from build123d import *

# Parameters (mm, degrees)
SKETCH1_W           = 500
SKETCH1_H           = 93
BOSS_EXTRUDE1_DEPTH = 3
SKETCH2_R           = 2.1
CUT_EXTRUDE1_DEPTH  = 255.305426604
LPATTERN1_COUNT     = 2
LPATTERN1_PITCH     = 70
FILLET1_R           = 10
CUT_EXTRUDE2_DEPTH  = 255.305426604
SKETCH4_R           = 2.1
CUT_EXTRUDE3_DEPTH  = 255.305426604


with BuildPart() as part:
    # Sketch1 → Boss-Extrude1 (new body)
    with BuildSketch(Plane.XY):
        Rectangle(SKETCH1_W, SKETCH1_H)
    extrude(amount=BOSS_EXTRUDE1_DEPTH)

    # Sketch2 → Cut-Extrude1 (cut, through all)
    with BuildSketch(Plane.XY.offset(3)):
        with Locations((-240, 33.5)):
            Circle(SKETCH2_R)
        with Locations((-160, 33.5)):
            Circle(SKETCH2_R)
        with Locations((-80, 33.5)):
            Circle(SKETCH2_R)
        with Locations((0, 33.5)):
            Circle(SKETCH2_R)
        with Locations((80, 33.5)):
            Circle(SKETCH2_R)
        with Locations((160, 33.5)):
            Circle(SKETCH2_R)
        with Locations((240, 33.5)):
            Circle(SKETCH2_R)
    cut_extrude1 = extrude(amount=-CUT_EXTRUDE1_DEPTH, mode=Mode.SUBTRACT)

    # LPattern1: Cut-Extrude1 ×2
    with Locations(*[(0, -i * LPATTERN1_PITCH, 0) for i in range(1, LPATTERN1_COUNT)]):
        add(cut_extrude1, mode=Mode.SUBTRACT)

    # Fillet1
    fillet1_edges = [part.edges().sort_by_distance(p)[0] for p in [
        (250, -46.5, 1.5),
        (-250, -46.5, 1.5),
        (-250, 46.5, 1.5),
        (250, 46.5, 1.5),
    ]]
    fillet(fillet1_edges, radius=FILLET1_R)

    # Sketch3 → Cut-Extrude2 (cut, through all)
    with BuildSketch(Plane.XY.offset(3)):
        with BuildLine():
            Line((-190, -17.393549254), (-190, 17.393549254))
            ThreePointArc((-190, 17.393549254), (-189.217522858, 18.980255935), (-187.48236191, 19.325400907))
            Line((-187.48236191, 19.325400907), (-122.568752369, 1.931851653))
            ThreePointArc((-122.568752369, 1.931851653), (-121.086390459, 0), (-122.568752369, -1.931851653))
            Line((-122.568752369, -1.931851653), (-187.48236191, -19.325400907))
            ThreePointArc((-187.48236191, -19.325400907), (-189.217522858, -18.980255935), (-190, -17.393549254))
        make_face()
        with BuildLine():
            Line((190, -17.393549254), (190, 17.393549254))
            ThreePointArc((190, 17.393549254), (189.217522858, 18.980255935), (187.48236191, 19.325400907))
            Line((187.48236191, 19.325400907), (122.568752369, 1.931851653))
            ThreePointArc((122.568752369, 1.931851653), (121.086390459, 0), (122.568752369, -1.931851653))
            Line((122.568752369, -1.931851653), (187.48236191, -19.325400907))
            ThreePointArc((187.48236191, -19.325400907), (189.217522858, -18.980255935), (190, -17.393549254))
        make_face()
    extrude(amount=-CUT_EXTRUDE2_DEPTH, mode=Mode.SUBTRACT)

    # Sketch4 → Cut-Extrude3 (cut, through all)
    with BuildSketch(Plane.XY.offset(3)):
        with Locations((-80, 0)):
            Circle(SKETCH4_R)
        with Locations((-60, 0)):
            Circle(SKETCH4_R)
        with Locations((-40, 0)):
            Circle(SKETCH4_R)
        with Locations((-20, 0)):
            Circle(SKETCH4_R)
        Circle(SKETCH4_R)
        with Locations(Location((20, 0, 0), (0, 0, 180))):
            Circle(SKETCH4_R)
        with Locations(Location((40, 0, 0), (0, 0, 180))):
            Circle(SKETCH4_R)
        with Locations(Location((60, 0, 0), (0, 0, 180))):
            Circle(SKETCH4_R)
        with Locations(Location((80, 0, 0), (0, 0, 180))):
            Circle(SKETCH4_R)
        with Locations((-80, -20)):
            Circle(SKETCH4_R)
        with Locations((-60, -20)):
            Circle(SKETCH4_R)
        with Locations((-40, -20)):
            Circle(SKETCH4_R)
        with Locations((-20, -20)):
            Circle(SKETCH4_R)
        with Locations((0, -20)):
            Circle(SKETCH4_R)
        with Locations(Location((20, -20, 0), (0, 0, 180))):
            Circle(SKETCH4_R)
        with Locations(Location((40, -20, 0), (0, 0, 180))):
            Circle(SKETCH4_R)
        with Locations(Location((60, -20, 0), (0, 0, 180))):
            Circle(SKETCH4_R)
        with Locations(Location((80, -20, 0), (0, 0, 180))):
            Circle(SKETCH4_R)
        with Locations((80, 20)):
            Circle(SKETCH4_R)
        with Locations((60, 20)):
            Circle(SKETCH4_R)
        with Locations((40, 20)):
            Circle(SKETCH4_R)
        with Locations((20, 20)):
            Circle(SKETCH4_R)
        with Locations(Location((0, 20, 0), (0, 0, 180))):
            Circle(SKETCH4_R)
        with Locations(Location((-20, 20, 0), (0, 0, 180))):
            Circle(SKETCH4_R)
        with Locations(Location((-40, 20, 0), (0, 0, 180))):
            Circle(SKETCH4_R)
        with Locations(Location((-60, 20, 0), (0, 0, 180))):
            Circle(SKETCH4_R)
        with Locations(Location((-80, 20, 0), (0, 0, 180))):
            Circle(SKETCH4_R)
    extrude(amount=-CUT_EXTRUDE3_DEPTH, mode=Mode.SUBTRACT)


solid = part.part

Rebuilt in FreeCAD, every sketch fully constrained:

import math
import FreeCAD as App
import Part
import Sketcher
from FreeCAD import Vector
Q = App.Units.Quantity


def edges_at(feature, points):
    """Names of the edges that pass closest to the given points."""
    edges = feature.Shape.Edges
    near = lambda p: min(range(len(edges)), key=lambda i: edges[i].distToShape(Part.Vertex(*p))[0])
    return sorted({f"Edge{near(p) + 1}" for p in points})


def add_polygon(sketch, points):
    """Adds a closed chain of lines whose ends are joined by coincident constraints."""
    first, n = sketch.GeometryCount, len(points)
    for a, b in zip(points, points[1:] + points[:1]):
        sketch.addGeometry(Part.LineSegment(App.Vector(*a, 0), App.Vector(*b, 0)), False)
    for i in range(n):
        sketch.addConstraint(Sketcher.Constraint("Coincident", first + i, 2, first + (i + 1) % n, 1))

doc = App.newDocument("Part")
body = doc.addObject("PartDesign::Body", "Body")

# Sketch on XY plane
sketch1 = body.newObject("Sketcher::SketchObject", "Sketch")
sketch1.AttachmentSupport = (doc.getObject("XY_Plane"), [""])
sketch1.MapMode = "FlatFace"
add_polygon(sketch1, [(-250, 46), (-250, -46), (250, -46), (250, 46)])  # lines 0-3
sketch1.addConstraint([
    Sketcher.Constraint("Vertical", 0),
    Sketcher.Constraint("Horizontal", 1),
    Sketcher.Constraint("Vertical", 2),
    Sketcher.Constraint("Horizontal", 3),
    Sketcher.Constraint("Symmetric", 0, 2, 2, 2, -1, 1),
    Sketcher.Constraint("DistanceX", 1, 1, 1, 2, 500.0),
    Sketcher.Constraint("DistanceY", 0, 2, 0, 1, 93.0),
])
pad1 = body.newObject("PartDesign::Pad", "Pad")
pad1.Profile = sketch1
pad1.Length = 3

# Sketch on XY plane
sketch2 = body.newObject("Sketcher::SketchObject", "Sketch001")
sketch2.AttachmentSupport = (doc.getObject("XY_Plane"), [""])
sketch2.MapMode = "FlatFace"
sketch2.AttachmentOffset = App.Placement(Vector(0, 0, 3), App.Rotation())
sketch2.addGeometry([
    Part.Circle(Vector(-240, 33.5, 0), Vector(0, 0, 1), 2.1),  # 0
    Part.Circle(Vector(-160, 33.5, 0), Vector(0, 0, 1), 2.1),  # 1
    Part.Circle(Vector(-80, 33.5, 0), Vector(0, 0, 1), 2.1),  # 2
    Part.Circle(Vector(0, 33.5, 0), Vector(0, 0, 1), 2.1),  # 3
    Part.Circle(Vector(80, 33.5, 0), Vector(0, 0, 1), 2.1),  # 4
    Part.Circle(Vector(160, 33.5, 0), Vector(0, 0, 1), 2.1),  # 5
    Part.Circle(Vector(240, 33.5, 0), Vector(0, 0, 1), 2.1),  # 6
], False)
sketch2.addConstraint([
    Sketcher.Constraint("Equal", 0, 1),
    Sketcher.Constraint("Equal", 1, 2),
    Sketcher.Constraint("Equal", 2, 3),
    Sketcher.Constraint("Equal", 3, 4),
    Sketcher.Constraint("Equal", 4, 5),
    Sketcher.Constraint("Equal", 5, 6),
    Sketcher.Constraint("Symmetric", 2, 3, 4, 3, -2),
    Sketcher.Constraint("Symmetric", 1, 3, 5, 3, -2),
    Sketcher.Constraint("Symmetric", 0, 3, 6, 3, -2),
    Sketcher.Constraint("PointOnObject", 3, 3, -2),
    Sketcher.Constraint("Horizontal", 0, 3, 1, 3),
    Sketcher.Constraint("Horizontal", 1, 3, 2, 3),
    Sketcher.Constraint("Horizontal", 2, 3, 3, 3),
    Sketcher.Constraint("Diameter", 0, 4.2),
    Sketcher.Constraint("DistanceX", 0, 3, -1, 1, 240.0),
    Sketcher.Constraint("DistanceX", 1, 3, -1, 1, 160.0),
    Sketcher.Constraint("DistanceX", 2, 3, -1, 1, 80.0),
    Sketcher.Constraint("DistanceY", -1, 1, 0, 3, 33.5),
])
pocket1 = body.newObject("PartDesign::Pocket", "Pocket")
pocket1.Profile = sketch2
pocket1.Type = "ThroughAll"
doc.recompute()

linearpattern = body.newObject("PartDesign::LinearPattern", "LinearPattern")
linearpattern.Originals = [pocket1]
linearpattern.Direction = (doc.getObject("Y_Axis"), [""])
linearpattern.Mode = "offset"
linearpattern.Offset = 70
linearpattern.Occurrences = 2
linearpattern.Reversed = True
body.Tip = linearpattern
doc.recompute()

fillet = body.newObject("PartDesign::Fillet", "Fillet")
fillet.Base = (linearpattern, edges_at(linearpattern, [
    (250, -46.5, 1.5),
    (-250, -46.5, 1.5),
    (-250, 46.5, 1.5),
    (250, 46.5, 1.5),
]))
fillet.Radius = 10

# Sketch on XY plane
sketch3 = body.newObject("Sketcher::SketchObject", "Sketch002")
sketch3.AttachmentSupport = (doc.getObject("XY_Plane"), [""])
sketch3.MapMode = "FlatFace"
sketch3.AttachmentOffset = App.Placement(Vector(0, 0, 3), App.Rotation())
sketch3.addGeometry([
    Part.LineSegment(Vector(-190, 17.4, 0), Vector(-190, -17.4, 0)),  # 0
    Part.ArcOfCircle(Part.Circle(Vector(-188, -17.4, 0), Vector(0, 0, 1), 2), math.radians(180), math.radians(285)),  # 1
    Part.LineSegment(Vector(-187.5, -19.3, 0), Vector(-122.6, -1.9, 0)),  # 2
    Part.ArcOfCircle(Part.Circle(Vector(-123.1, 0, 0), Vector(0, 0, 1), 2), math.radians(-75), math.radians(75)),  # 3
    Part.LineSegment(Vector(-122.6, 1.9, 0), Vector(-187.5, 19.3, 0)),  # 4
    Part.ArcOfCircle(Part.Circle(Vector(-188, 17.4, 0), Vector(0, 0, 1), 2), math.radians(75), math.radians(180)),  # 5
    Part.LineSegment(Vector(190, -17.4, 0), Vector(190, 17.4, 0)),  # 6
    Part.ArcOfCircle(Part.Circle(Vector(188, 17.4, 0), Vector(0, 0, 1), 2), math.radians(0), math.radians(105)),  # 7
    Part.LineSegment(Vector(187.5, 19.3, 0), Vector(122.6, 1.9, 0)),  # 8
    Part.ArcOfCircle(Part.Circle(Vector(123.1, 0, 0), Vector(0, 0, 1), 2), math.radians(105), math.radians(255)),  # 9
    Part.LineSegment(Vector(122.6, -1.9, 0), Vector(187.5, -19.3, 0)),  # 10
    Part.ArcOfCircle(Part.Circle(Vector(188, -17.4, 0), Vector(0, 0, 1), 2), math.radians(-105), math.radians(0)),  # 11
], False)
sketch3.addConstraint([
    Sketcher.Constraint("Tangent", 0, 2, 1, 1),
    Sketcher.Constraint("Tangent", 1, 2, 2, 1),
    Sketcher.Constraint("Tangent", 2, 2, 3, 1),
    Sketcher.Constraint("Tangent", 3, 2, 4, 1),
    Sketcher.Constraint("Tangent", 4, 2, 5, 1),
    Sketcher.Constraint("Tangent", 5, 2, 0, 1),
    Sketcher.Constraint("Tangent", 6, 2, 7, 1),
    Sketcher.Constraint("Tangent", 7, 2, 8, 1),
    Sketcher.Constraint("Tangent", 8, 2, 9, 1),
    Sketcher.Constraint("Tangent", 9, 2, 10, 1),
    Sketcher.Constraint("Tangent", 10, 2, 11, 1),
    Sketcher.Constraint("Tangent", 11, 2, 6, 1),
    Sketcher.Constraint("Vertical", 0),
    Sketcher.Constraint("Vertical", 6),
    Sketcher.Constraint("Equal", 1, 3),
    Sketcher.Constraint("Equal", 3, 5),
    Sketcher.Constraint("Equal", 5, 7),
    Sketcher.Constraint("Equal", 7, 9),
    Sketcher.Constraint("Equal", 9, 11),
    Sketcher.Constraint("Symmetric", 1, 3, 7, 3, -1, 1),
    Sketcher.Constraint("Symmetric", 3, 3, 9, 3, -1, 1),
    Sketcher.Constraint("Symmetric", 4, 2, 7, 2, -2),
    Sketcher.Constraint("Parallel", 4, 10),
    Sketcher.Constraint("Radius", 1, 2.0),
    Sketcher.Constraint("Angle", 2, Q("15 deg")),
    Sketcher.Constraint("DistanceX", 1, 3, -1, 1, 188.0),
    Sketcher.Constraint("DistanceY", 0, 2, 0, 1, 34.787099),
])
pocket2 = body.newObject("PartDesign::Pocket", "Pocket001")
pocket2.Profile = sketch3
pocket2.Type = "ThroughAll"

# Sketch on XY plane
sketch4 = body.newObject("Sketcher::SketchObject", "Sketch003")
sketch4.AttachmentSupport = (doc.getObject("XY_Plane"), [""])
sketch4.MapMode = "FlatFace"
sketch4.AttachmentOffset = App.Placement(Vector(0, 0, 3), App.Rotation())
sketch4.addGeometry([
    Part.Circle(Vector(-80, 0, 0), Vector(0, 0, 1), 2.1),  # 0
    Part.Circle(Vector(-60, 0, 0), Vector(0, 0, 1), 2.1),  # 1
    Part.Circle(Vector(-40, 0, 0), Vector(0, 0, 1), 2.1),  # 2
    Part.Circle(Vector(-20, 0, 0), Vector(0, 0, 1), 2.1),  # 3
    Part.Circle(Vector(0, 0, 0), Vector(0, 0, 1), 2.1),  # 4
    Part.Circle(Vector(20, 0, 0), Vector(0, 0, 1), 2.1),  # 5
    Part.Circle(Vector(40, 0, 0), Vector(0, 0, 1), 2.1),  # 6
    Part.Circle(Vector(60, 0, 0), Vector(0, 0, 1), 2.1),  # 7
    Part.Circle(Vector(80, 0, 0), Vector(0, 0, 1), 2.1),  # 8
    Part.Circle(Vector(-80, -20, 0), Vector(0, 0, 1), 2.1),  # 9
    Part.Circle(Vector(-60, -20, 0), Vector(0, 0, 1), 2.1),  # 10
    Part.Circle(Vector(-40, -20, 0), Vector(0, 0, 1), 2.1),  # 11
    Part.Circle(Vector(-20, -20, 0), Vector(0, 0, 1), 2.1),  # 12
    Part.Circle(Vector(0, -20, 0), Vector(0, 0, 1), 2.1),  # 13
    Part.Circle(Vector(20, -20, 0), Vector(0, 0, 1), 2.1),  # 14
    Part.Circle(Vector(40, -20, 0), Vector(0, 0, 1), 2.1),  # 15
    Part.Circle(Vector(60, -20, 0), Vector(0, 0, 1), 2.1),  # 16
    Part.Circle(Vector(80, -20, 0), Vector(0, 0, 1), 2.1),  # 17
    Part.Circle(Vector(80, 20, 0), Vector(0, 0, 1), 2.1),  # 18
    Part.Circle(Vector(60, 20, 0), Vector(0, 0, 1), 2.1),  # 19
    Part.Circle(Vector(40, 20, 0), Vector(0, 0, 1), 2.1),  # 20
    Part.Circle(Vector(20, 20, 0), Vector(0, 0, 1), 2.1),  # 21
    Part.Circle(Vector(0, 20, 0), Vector(0, 0, 1), 2.1),  # 22
    Part.Circle(Vector(-20, 20, 0), Vector(0, 0, 1), 2.1),  # 23
    Part.Circle(Vector(-40, 20, 0), Vector(0, 0, 1), 2.1),  # 24
    Part.Circle(Vector(-60, 20, 0), Vector(0, 0, 1), 2.1),  # 25
    Part.Circle(Vector(-80, 20, 0), Vector(0, 0, 1), 2.1),  # 26
], False)
sketch4.addConstraint([
    Sketcher.Constraint("Coincident", 4, 3, -1, 1),
    Sketcher.Constraint("Equal", 0, 1),
    Sketcher.Constraint("Equal", 1, 2),
    Sketcher.Constraint("Equal", 2, 3),
    Sketcher.Constraint("Equal", 3, 4),
    Sketcher.Constraint("Equal", 4, 5),
    Sketcher.Constraint("Equal", 5, 6),
    Sketcher.Constraint("Equal", 6, 7),
    Sketcher.Constraint("Equal", 7, 8),
    Sketcher.Constraint("Equal", 8, 9),
    Sketcher.Constraint("Equal", 9, 10),
    Sketcher.Constraint("Equal", 10, 11),
    Sketcher.Constraint("Equal", 11, 12),
    Sketcher.Constraint("Equal", 12, 13),
    Sketcher.Constraint("Equal", 13, 14),
    Sketcher.Constraint("Equal", 14, 15),
    Sketcher.Constraint("Equal", 15, 16),
    Sketcher.Constraint("Equal", 16, 17),
    Sketcher.Constraint("Equal", 17, 18),
    Sketcher.Constraint("Equal", 18, 19),
    Sketcher.Constraint("Equal", 19, 20),
    Sketcher.Constraint("Equal", 20, 21),
    Sketcher.Constraint("Equal", 21, 22),
    Sketcher.Constraint("Equal", 22, 23),
    Sketcher.Constraint("Equal", 23, 24),
    Sketcher.Constraint("Equal", 24, 25),
    Sketcher.Constraint("Equal", 25, 26),
    Sketcher.Constraint("Symmetric", 3, 3, 5, 3, -1, 1),
    Sketcher.Constraint("Symmetric", 2, 3, 6, 3, -1, 1),
    Sketcher.Constraint("Symmetric", 1, 3, 7, 3, -1, 1),
    Sketcher.Constraint("Symmetric", 0, 3, 8, 3, -1, 1),
    Sketcher.Constraint("Symmetric", 9, 3, 18, 3, -1, 1),
    Sketcher.Constraint("Symmetric", 10, 3, 19, 3, -1, 1),
    Sketcher.Constraint("Symmetric", 11, 3, 20, 3, -1, 1),
    Sketcher.Constraint("Symmetric", 12, 3, 21, 3, -1, 1),
    Sketcher.Constraint("Symmetric", 13, 3, 22, 3, -1, 1),
    Sketcher.Constraint("Symmetric", 14, 3, 23, 3, -1, 1),
    Sketcher.Constraint("Symmetric", 15, 3, 24, 3, -1, 1),
    Sketcher.Constraint("Symmetric", 16, 3, 25, 3, -1, 1),
    Sketcher.Constraint("Symmetric", 17, 3, 26, 3, -1, 1),
    Sketcher.Constraint("Symmetric", 12, 3, 14, 3, -2),
    Sketcher.Constraint("Symmetric", 11, 3, 15, 3, -2),
    Sketcher.Constraint("Symmetric", 10, 3, 16, 3, -2),
    Sketcher.Constraint("Symmetric", 9, 3, 17, 3, -2),
    Sketcher.Constraint("PointOnObject", 0, 3, -1),
    Sketcher.Constraint("PointOnObject", 1, 3, -1),
    Sketcher.Constraint("PointOnObject", 2, 3, -1),
    Sketcher.Constraint("PointOnObject", 3, 3, -1),
    Sketcher.Constraint("PointOnObject", 13, 3, -2),
    Sketcher.Constraint("Horizontal", 9, 3, 10, 3),
    Sketcher.Constraint("Horizontal", 10, 3, 11, 3),
    Sketcher.Constraint("Horizontal", 11, 3, 12, 3),
    Sketcher.Constraint("Horizontal", 12, 3, 13, 3),
    Sketcher.Constraint("Vertical", 0, 3, 9, 3),
    Sketcher.Constraint("Vertical", 1, 3, 10, 3),
    Sketcher.Constraint("Vertical", 2, 3, 11, 3),
    Sketcher.Constraint("Vertical", 3, 3, 12, 3),
    Sketcher.Constraint("Diameter", 0, 4.2),
    Sketcher.Constraint("DistanceX", 0, 3, -1, 1, 80.0),
    Sketcher.Constraint("DistanceX", 1, 3, -1, 1, 60.0),
    Sketcher.Constraint("DistanceX", 2, 3, -1, 1, 40.0),
    Sketcher.Constraint("DistanceX", 3, 3, -1, 1, 20.0),
    Sketcher.Constraint("DistanceY", 9, 3, -1, 1, 20.0),
])
pocket3 = body.newObject("PartDesign::Pocket", "Pocket002")
pocket3.Profile = sketch4
pocket3.Type = "ThroughAll"

doc.recompute()
